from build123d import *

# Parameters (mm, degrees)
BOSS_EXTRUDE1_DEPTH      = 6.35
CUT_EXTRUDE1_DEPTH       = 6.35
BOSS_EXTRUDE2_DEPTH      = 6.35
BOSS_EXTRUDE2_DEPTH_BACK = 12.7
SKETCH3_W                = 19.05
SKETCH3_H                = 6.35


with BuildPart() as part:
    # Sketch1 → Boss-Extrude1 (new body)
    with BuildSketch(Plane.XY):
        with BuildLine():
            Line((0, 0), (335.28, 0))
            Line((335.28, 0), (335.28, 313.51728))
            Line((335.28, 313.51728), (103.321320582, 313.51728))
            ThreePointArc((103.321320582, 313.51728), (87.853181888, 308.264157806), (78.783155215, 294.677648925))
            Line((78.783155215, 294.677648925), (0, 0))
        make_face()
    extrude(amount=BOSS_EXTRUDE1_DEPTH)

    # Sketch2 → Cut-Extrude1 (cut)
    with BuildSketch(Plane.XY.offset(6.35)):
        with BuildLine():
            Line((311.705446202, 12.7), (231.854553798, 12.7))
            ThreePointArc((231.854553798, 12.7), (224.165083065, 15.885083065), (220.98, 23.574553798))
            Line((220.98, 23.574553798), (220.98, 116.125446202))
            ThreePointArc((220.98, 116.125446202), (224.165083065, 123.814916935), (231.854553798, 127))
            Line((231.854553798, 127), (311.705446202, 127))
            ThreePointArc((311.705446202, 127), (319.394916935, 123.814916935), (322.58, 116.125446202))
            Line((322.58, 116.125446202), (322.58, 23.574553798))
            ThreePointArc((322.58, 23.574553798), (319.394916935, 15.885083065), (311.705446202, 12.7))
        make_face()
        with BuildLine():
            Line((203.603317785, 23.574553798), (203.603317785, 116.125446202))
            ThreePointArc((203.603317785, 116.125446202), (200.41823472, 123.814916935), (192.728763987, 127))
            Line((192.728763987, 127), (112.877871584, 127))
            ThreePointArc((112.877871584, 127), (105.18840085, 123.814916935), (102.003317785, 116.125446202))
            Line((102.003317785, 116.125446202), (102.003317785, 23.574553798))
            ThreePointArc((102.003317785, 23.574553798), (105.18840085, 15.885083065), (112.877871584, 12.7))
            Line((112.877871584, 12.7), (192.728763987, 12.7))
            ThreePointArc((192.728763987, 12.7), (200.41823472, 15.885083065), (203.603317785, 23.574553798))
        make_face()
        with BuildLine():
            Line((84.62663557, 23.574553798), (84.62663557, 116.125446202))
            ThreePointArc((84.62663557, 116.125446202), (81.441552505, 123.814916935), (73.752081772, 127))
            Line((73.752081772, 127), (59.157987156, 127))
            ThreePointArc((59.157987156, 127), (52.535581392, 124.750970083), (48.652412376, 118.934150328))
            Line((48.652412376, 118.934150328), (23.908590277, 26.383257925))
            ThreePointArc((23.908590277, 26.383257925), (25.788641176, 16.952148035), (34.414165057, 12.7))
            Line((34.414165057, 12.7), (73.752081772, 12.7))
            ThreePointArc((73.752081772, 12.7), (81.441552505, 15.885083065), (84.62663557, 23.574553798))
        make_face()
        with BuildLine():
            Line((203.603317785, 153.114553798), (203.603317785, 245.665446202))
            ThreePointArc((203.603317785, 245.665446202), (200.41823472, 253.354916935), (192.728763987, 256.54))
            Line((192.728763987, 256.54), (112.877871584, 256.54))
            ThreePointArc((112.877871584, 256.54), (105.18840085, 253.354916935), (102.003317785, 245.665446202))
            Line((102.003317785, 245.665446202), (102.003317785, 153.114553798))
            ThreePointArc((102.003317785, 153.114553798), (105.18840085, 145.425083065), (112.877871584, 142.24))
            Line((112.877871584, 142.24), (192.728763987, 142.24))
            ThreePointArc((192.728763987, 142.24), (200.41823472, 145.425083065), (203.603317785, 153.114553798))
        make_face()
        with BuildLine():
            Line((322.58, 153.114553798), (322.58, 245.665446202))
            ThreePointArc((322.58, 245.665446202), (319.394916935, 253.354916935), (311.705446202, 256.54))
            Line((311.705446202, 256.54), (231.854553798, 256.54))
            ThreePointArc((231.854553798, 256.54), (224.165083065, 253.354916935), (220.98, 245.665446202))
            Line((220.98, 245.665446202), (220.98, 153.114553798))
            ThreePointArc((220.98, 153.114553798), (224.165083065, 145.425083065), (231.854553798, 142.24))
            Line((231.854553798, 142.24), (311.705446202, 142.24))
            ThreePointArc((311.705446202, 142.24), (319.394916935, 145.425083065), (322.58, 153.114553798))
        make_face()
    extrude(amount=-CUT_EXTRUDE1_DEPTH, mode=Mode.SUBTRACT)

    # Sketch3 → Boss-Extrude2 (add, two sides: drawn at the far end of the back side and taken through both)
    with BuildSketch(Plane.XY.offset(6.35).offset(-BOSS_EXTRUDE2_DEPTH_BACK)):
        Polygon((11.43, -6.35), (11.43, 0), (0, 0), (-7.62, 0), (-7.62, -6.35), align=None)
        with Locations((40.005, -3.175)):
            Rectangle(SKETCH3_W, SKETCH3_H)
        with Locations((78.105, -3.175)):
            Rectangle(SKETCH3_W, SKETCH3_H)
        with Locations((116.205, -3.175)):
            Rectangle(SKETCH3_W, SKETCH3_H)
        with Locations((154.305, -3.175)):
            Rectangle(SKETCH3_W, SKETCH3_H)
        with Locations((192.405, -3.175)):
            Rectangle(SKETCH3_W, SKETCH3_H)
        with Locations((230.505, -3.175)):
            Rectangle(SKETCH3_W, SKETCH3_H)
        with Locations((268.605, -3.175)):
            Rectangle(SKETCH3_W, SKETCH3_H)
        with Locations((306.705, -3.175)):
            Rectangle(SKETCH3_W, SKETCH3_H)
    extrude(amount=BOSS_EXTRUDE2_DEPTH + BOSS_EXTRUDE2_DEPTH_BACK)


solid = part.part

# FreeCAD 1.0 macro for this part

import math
import FreeCAD as App
import Part
import Sketcher

V = App.Vector
Q = App.Units.Quantity


def add_polygon(sketch, points):
    """Adds a closed chain of lines whose ends are joined by coincident constraints."""
    first, n = sketch.GeometryCount, len(points)
    for a, b in zip(points, points[1:] + points[:1]):
        sketch.addGeometry(Part.LineSegment(App.Vector(*a, 0), App.Vector(*b, 0)), False)
    for i in range(n):
        sketch.addConstraint(Sketcher.Constraint("Coincident", first + i, 2, first + (i + 1) % n, 1))

doc = App.newDocument("Part")
params = doc.addObject("Spreadsheet::Sheet", "Params")
for row, (alias, value) in enumerate([
    ("sketch1_radius", "1 in"),
    ("sketch1_width", "13.2 in"),
    ("pad1_length", "0.25 in"),
    ("pocket1_length", "0.25 in"),
    ("sketch3_width", "0.75 in"),
    ("sketch3_height", "0.25 in"),
    ("pad2_length", "0.25 in"),
    ("pad2_length2", "0.5 in"),
], start=1):
    params.set(f"A{row}", alias)
    params.set(f"B{row}", "=" + value)
    params.setAlias(f"B{row}", alias)

body = doc.addObject("PartDesign::Body", "Body")

# Sketch on XY plane
sketch1 = doc.addObject("Sketcher::SketchObject", "Sketch")
body.addObject(sketch1)
sketch1.AttachmentSupport = (doc.XY_Plane, [""])
sketch1.MapMode = "FlatFace"
sketch1.addGeometry([
    Part.LineSegment(V(0, 0, 0), V(335, 0, 0)),  # 0
    Part.LineSegment(V(335, 0, 0), V(335, 314, 0)),  # 1
    Part.LineSegment(V(335, 314, 0), V(103, 314, 0)),  # 2
    Part.ArcOfCircle(Part.Circle(V(103, 288, 0), V(0, 0, 1), 25), math.radians(90), math.radians(165)),  # 3
    Part.LineSegment(V(79, 295, 0), V(0, 0, 0)),  # 4
], False)
sketch1.addConstraint([
    Sketcher.Constraint("Coincident", 0, 2, 1, 1),
    Sketcher.Constraint("Coincident", 1, 2, 2, 1),
    Sketcher.Constraint("Tangent", 2, 2, 3, 1),
    Sketcher.Constraint("Tangent", 3, 2, 4, 1),
    Sketcher.Constraint("Coincident", 4, 2, 0, 1),
    Sketcher.Constraint("Horizontal", 0),
    Sketcher.Constraint("Vertical", 1),
    Sketcher.Constraint("Horizontal", 2),
    Sketcher.Constraint("Coincident", 4, 2, -1, 1),
    Sketcher.Constraint("Radius", 3, Q("1 in")),
    Sketcher.Constraint("DistanceX", 0, 1, 0, 2, Q("13.2 in")),
    Sketcher.Constraint("DistanceY", 1, 1, 1, 2, Q("12.3432 in")),
    Sketcher.Constraint("DistanceX", 2, 2, 2, 1, Q("231.958679 mm")),
])
sketch1.setExpression("Constraints[9]", "Params.sketch1_radius")
sketch1.setExpression("Constraints[10]", "Params.sketch1_width")
pad1 = doc.addObject("PartDesign::Pad", "Pad")
body.addObject(pad1)
pad1.Profile = sketch1
pad1.setExpression("Length", "Params.pad1_length")

# Sketch on XY plane
sketch2 = doc.addObject("Sketcher::SketchObject", "Sketch001")
body.addObject(sketch2)
sketch2.AttachmentSupport = (doc.XY_Plane, [""])
sketch2.MapMode = "FlatFace"
sketch2.AttachmentOffset = App.Placement(V(0, 0, 0.25 * 25.4), App.Rotation())
sketch2.addGeometry([
    Part.LineSegment(V(232, 13, 0), V(312, 13, 0)),  # 0
    Part.ArcOfCircle(Part.Circle(V(312, 24, 0), V(0, 0, 1), 11), math.radians(-90), math.radians(0)),  # 1
    Part.LineSegment(V(323, 24, 0), V(323, 116, 0)),  # 2
    Part.ArcOfCircle(Part.Circle(V(312, 116, 0), V(0, 0, 1), 11), math.radians(0), math.radians(90)),  # 3
    Part.LineSegment(V(312, 127, 0), V(232, 127, 0)),  # 4
    Part.ArcOfCircle(Part.Circle(V(232, 116, 0), V(0, 0, 1), 11), math.radians(90), math.radians(180)),  # 5
    Part.LineSegment(V(221, 116, 0), V(221, 24, 0)),  # 6
    Part.ArcOfCircle(Part.Circle(V(232, 24, 0), V(0, 0, 1), 11), math.radians(180), math.radians(270)),  # 7
    Part.LineSegment(V(204, 24, 0), V(204, 116, 0)),  # 8
    Part.ArcOfCircle(Part.Circle(V(193, 116, 0), V(0, 0, 1), 11), math.radians(0), math.radians(90)),  # 9
    Part.LineSegment(V(193, 127, 0), V(113, 127, 0)),  # 10
    Part.ArcOfCircle(Part.Circle(V(113, 116, 0), V(0, 0, 1), 11), math.radians(90), math.radians(180)),  # 11
    Part.LineSegment(V(102, 116, 0), V(102, 24, 0)),  # 12
    Part.ArcOfCircle(Part.Circle(V(113, 24, 0), V(0, 0, 1), 11), math.radians(180), math.radians(270)),  # 13
    Part.LineSegment(V(113, 13, 0), V(193, 13, 0)),  # 14
    Part.ArcOfCircle(Part.Circle(V(193, 24, 0), V(0, 0, 1), 11), math.radians(-90), math.radians(0)),  # 15
    Part.LineSegment(V(85, 24, 0), V(85, 116, 0)),  # 16
    Part.ArcOfCircle(Part.Circle(V(74, 116, 0), V(0, 0, 1), 11), math.radians(0), math.radians(90)),  # 17
    Part.LineSegment(V(74, 127, 0), V(59, 127, 0)),  # 18
    Part.ArcOfCircle(Part.Circle(V(59, 116, 0), V(0, 0, 1), 11), math.radians(90), math.radians(165)),  # 19
    Part.LineSegment(V(49, 119, 0), V(24, 26, 0)),  # 20
    Part.ArcOfCircle(Part.Circle(V(34, 24, 0), V(0, 0, 1), 11), math.radians(165), math.radians(270)),  # 21
    Part.LineSegment(V(34, 13, 0), V(74, 13, 0)),  # 22
    Part.ArcOfCircle(Part.Circle(V(74, 24, 0), V(0, 0, 1), 11), math.radians(-90), math.radians(0)),  # 23
    Part.LineSegment(V(204, 153, 0), V(204, 246, 0)),  # 24
    Part.ArcOfCircle(Part.Circle(V(193, 246, 0), V(0, 0, 1), 11), math.radians(0), math.radians(90)),  # 25
    Part.LineSegment(V(193, 257, 0), V(113, 257, 0)),  # 26
    Part.ArcOfCircle(Part.Circle(V(113, 246, 0), V(0, 0, 1), 11), math.radians(90), math.radians(180)),  # 27
    Part.LineSegment(V(102, 246, 0), V(102, 153, 0)),  # 28
    Part.ArcOfCircle(Part.Circle(V(113, 153, 0), V(0, 0, 1), 11), math.radians(180), math.radians(270)),  # 29
    Part.LineSegment(V(113, 142, 0), V(193, 142, 0)),  # 30
    Part.ArcOfCircle(Part.Circle(V(193, 153, 0), V(0, 0, 1), 11), math.radians(-90), math.radians(0)),  # 31
    Part.LineSegment(V(323, 153, 0), V(323, 246, 0)),  # 32
    Part.ArcOfCircle(Part.Circle(V(312, 246, 0), V(0, 0, 1), 11), math.radians(0), math.radians(90)),  # 33
    Part.LineSegment(V(312, 257, 0), V(232, 257, 0)),  # 34
    Part.ArcOfCircle(Part.Circle(V(232, 246, 0), V(0, 0, 1), 11), math.radians(90), math.radians(180)),  # 35
    Part.LineSegment(V(221, 246, 0), V(221, 153, 0)),  # 36
    Part.ArcOfCircle(Part.Circle(V(232, 153, 0), V(0, 0, 1), 11), math.radians(180), math.radians(270)),  # 37
    Part.LineSegment(V(232, 142, 0), V(312, 142, 0)),  # 38
    Part.ArcOfCircle(Part.Circle(V(312, 153, 0), V(0, 0, 1), 11), math.radians(-90), math.radians(0)),  # 39
], False)
sketch2.addConstraint([
    Sketcher.Constraint("Tangent", 0, 2, 1, 1),
    Sketcher.Constraint("Tangent", 1, 2, 2, 1),
    Sketcher.Constraint("Tangent", 2, 2, 3, 1),
    Sketcher.Constraint("Tangent", 3, 2, 4, 1),
    Sketcher.Constraint("Tangent", 4, 2, 5, 1),
    Sketcher.Constraint("Tangent", 5, 2, 6, 1),
    Sketcher.Constraint("Tangent", 6, 2, 7, 1),
    Sketcher.Constraint("Tangent", 7, 2, 0, 1),
    Sketcher.Constraint("Tangent", 8, 2, 9, 1),
    Sketcher.Constraint("Tangent", 9, 2, 10, 1),
    Sketcher.Constraint("Tangent", 10, 2, 11, 1),
    Sketcher.Constraint("Tangent", 11, 2, 12, 1),
    Sketcher.Constraint("Tangent", 12, 2, 13, 1),
    Sketcher.Constraint("Tangent", 13, 2, 14, 1),
    Sketcher.Constraint("Tangent", 14, 2, 15, 1),
    Sketcher.Constraint("Tangent", 15, 2, 8, 1),
    Sketcher.Constraint("Tangent", 16, 2, 17, 1),
    Sketcher.Constraint("Tangent", 17, 2, 18, 1),
    Sketcher.Constraint("Tangent", 18, 2, 19, 1),
    Sketcher.Constraint("Tangent", 19, 2, 20, 1),
    Sketcher.Constraint("Tangent", 20, 2, 21, 1),
    Sketcher.Constraint("Tangent", 21, 2, 22, 1),
    Sketcher.Constraint("Tangent", 22, 2, 23, 1),
    Sketcher.Constraint("Tangent", 23, 2, 16, 1),
    Sketcher.Constraint("Tangent", 24, 2, 25, 1),
    Sketcher.Constraint("Tangent", 25, 2, 26, 1),
    Sketcher.Constraint("Tangent", 26, 2, 27, 1),
    Sketcher.Constraint("Tangent", 27, 2, 28, 1),
    Sketcher.Constraint("Tangent", 28, 2, 29, 1),
    Sketcher.Constraint("Tangent", 29, 2, 30, 1),
    Sketcher.Constraint("Tangent", 30, 2, 31, 1),
    Sketcher.Constraint("Tangent", 31, 2, 24, 1),
    Sketcher.Constraint("Tangent", 32, 2, 33, 1),
    Sketcher.Constraint("Tangent", 33, 2, 34, 1),
    Sketcher.Constraint("Tangent", 34, 2, 35, 1),
    Sketcher.Constraint("Tangent", 35, 2, 36, 1),
    Sketcher.Constraint("Tangent", 36, 2, 37, 1),
    Sketcher.Constraint("Tangent", 37, 2, 38, 1),
    Sketcher.Constraint("Tangent", 38, 2, 39, 1),
    Sketcher.Constraint("Tangent", 39, 2, 32, 1),
    Sketcher.Constraint("Horizontal", 0),
    Sketcher.Constraint("Vertical", 2),
    Sketcher.Constraint("Horizontal", 4),
    Sketcher.Constraint("Vertical", 6),
    Sketcher.Constraint("Vertical", 8),
    Sketcher.Constraint("Horizontal", 10),
    Sketcher.Constraint("Vertical", 12),
    Sketcher.Constraint("Horizontal", 14),
    Sketcher.Constraint("Vertical", 16),
    Sketcher.Constraint("Horizontal", 18),
    Sketcher.Constraint("Horizontal", 22),
    Sketcher.Constraint("Vertical", 24),
    Sketcher.Constraint("Horizontal", 26),
    Sketcher.Constraint("Vertical", 28),
    Sketcher.Constraint("Horizontal", 30),
    Sketcher.Constraint("Vertical", 32),
    Sketcher.Constraint("Horizontal", 34),
    Sketcher.Constraint("Vertical", 36),
    Sketcher.Constraint("Horizontal", 38),
    Sketcher.Constraint("Equal", 1, 3),
    Sketcher.Constraint("Equal", 3, 5),
    Sketcher.Constraint("Equal", 5, 7),
    Sketcher.Constraint("Equal", 7, 9),
    Sketcher.Constraint("Equal", 9, 11),
    Sketcher.Constraint("Equal", 11, 13),
    Sketcher.Constraint("Equal", 13, 15),
    Sketcher.Constraint("Equal", 15, 17),
    Sketcher.Constraint("Equal", 17, 19),
    Sketcher.Constraint("Equal", 19, 21),
    Sketcher.Constraint("Equal", 21, 23),
    Sketcher.Constraint("Equal", 23, 25),
    Sketcher.Constraint("Equal", 25, 27),
    Sketcher.Constraint("Equal", 27, 29),
    Sketcher.Constraint("Equal", 29, 31),
    Sketcher.Constraint("Equal", 31, 33),
    Sketcher.Constraint("Equal", 33, 35),
    Sketcher.Constraint("Equal", 35, 37),
    Sketcher.Constraint("Equal", 37, 39),
    Sketcher.Constraint("Horizontal", 5, 3, 9, 3),
    Sketcher.Constraint("Horizontal", 7, 3, 13, 3),
    Sketcher.Constraint("Horizontal", 11, 3, 17, 3),
    Sketcher.Constraint("Horizontal", 15, 3, 21, 3),
    Sketcher.Constraint("Horizontal", 27, 3, 33, 3),
    Sketcher.Constraint("Horizontal", 31, 3, 37, 3),
    Sketcher.Constraint("Vertical", 15, 3, 25, 3),
    Sketcher.Constraint("Vertical", 13, 3, 27, 3),
    Sketcher.Constraint("Vertical", 3, 3, 33, 3),
    Sketcher.Constraint("Vertical", 7, 3, 35, 3),
    Sketcher.Constraint("Equal", 4, 10),
    Sketcher.Constraint("Equal", 16, 24),
    Sketcher.Constraint("DistanceY", -1, 1, 3, 2, Q("5 in")),
    Sketcher.Constraint("DistanceY", -1, 1, 0, 2, Q("0.5 in")),
    Sketcher.Constraint("DistanceX", -1, 1, 1, 2, Q("12.7 in")),
    Sketcher.Constraint("DistanceX", -1, 1, 5, 2, Q("8.7 in")),
    Sketcher.Constraint("DistanceY", -1, 1, 25, 2, Q("10.1 in")),
    Sketcher.Constraint("Radius", 1, Q("10.874554 mm")),
    Sketcher.Constraint("DistanceX", 21, 3, 15, 3, Q("158.314599 mm")),
    Sketcher.Constraint("DistanceX", 18, 2, 18, 1, Q("14.594095 mm")),
    Sketcher.Constraint("DistanceX", 22, 1, 22, 2, Q("39.337917 mm")),
    Sketcher.Constraint("DistanceX", -1, 1, 11, 3, Q("112.877872 mm")),
])
pocket1 = doc.addObject("PartDesign::Pocket", "Pocket")
body.addObject(pocket1)
pocket1.Profile = sketch2
pocket1.setExpression("Length", "Params.pocket1_length")

# Sketch on XY plane
sketch3 = doc.addObject("Sketcher::SketchObject", "Sketch002")
body.addObject(sketch3)
sketch3.AttachmentSupport = (doc.XY_Plane, [""])
sketch3.MapMode = "FlatFace"
sketch3.AttachmentOffset = App.Placement(V(0, 0, 0.25 * 25.4), App.Rotation())
add_polygon(sketch3, [(11, -6), (11, 0), (-8, 0), (-8, -6)])  # lines 0-3
add_polygon(sketch3, [(30, 0), (30, -6), (50, -6), (50, 0)])  # lines 4-7
add_polygon(sketch3, [(69, 0), (69, -6), (88, -6), (88, 0)])  # lines 8-11
add_polygon(sketch3, [(107, 0), (107, -6), (126, -6), (126, 0)])  # lines 12-15
add_polygon(sketch3, [(145, 0), (145, -6), (164, -6), (164, 0)])  # lines 16-19
add_polygon(sketch3, [(183, 0), (183, -6), (202, -6), (202, 0)])  # lines 20-23
add_polygon(sketch3, [(221, 0), (221, -6), (240, -6), (240, 0)])  # lines 24-27
add_polygon(sketch3, [(259, 0), (259, -6), (278, -6), (278, 0)])  # lines 28-31
add_polygon(sketch3, [(297, 0), (297, -6), (316, -6), (316, 0)])  # lines 32-35
sketch3.addConstraint([
    Sketcher.Constraint("Vertical", 0),
    Sketcher.Constraint("Horizontal", 1),
    Sketcher.Constraint("Vertical", 2),
    Sketcher.Constraint("Horizontal", 3),
    Sketcher.Constraint("Vertical", 4),
    Sketcher.Constraint("Horizontal", 5),
    Sketcher.Constraint("Vertical", 6),
    Sketcher.Constraint("Horizontal", 7),
    Sketcher.Constraint("Vertical", 8),
    Sketcher.Constraint("Horizontal", 9),
    Sketcher.Constraint("Vertical", 10),
    Sketcher.Constraint("Horizontal", 11),
    Sketcher.Constraint("Vertical", 12),
    Sketcher.Constraint("Horizontal", 13),
    Sketcher.Constraint("Vertical", 14),
    Sketcher.Constraint("Horizontal", 15),
    Sketcher.Constraint("Vertical", 16),
    Sketcher.Constraint("Horizontal", 17),
    Sketcher.Constraint("Vertical", 18),
    Sketcher.Constraint("Horizontal", 19),
    Sketcher.Constraint("Vertical", 20),
    Sketcher.Constraint("Horizontal", 21),
    Sketcher.Constraint("Vertical", 22),
    Sketcher.Constraint("Horizontal", 23),
    Sketcher.Constraint("Vertical", 24),
    Sketcher.Constraint("Horizontal", 25),
    Sketcher.Constraint("Vertical", 26),
    Sketcher.Constraint("Horizontal", 27),
    Sketcher.Constraint("Vertical", 28),
    Sketcher.Constraint("Horizontal", 29),
    Sketcher.Constraint("Vertical", 30),
    Sketcher.Constraint("Horizontal", 31),
    Sketcher.Constraint("Vertical", 32),
    Sketcher.Constraint("Horizontal", 33),
    Sketcher.Constraint("Vertical", 34),
    Sketcher.Constraint("Horizontal", 35),
    Sketcher.Constraint("PointOnObject", 0, 2, -1),
    Sketcher.Constraint("PointOnObject", 6, 2, -1),
    Sketcher.Constraint("PointOnObject", 10, 2, -1),
    Sketcher.Constraint("PointOnObject", 14, 2, -1),
    Sketcher.Constraint("PointOnObject", 18, 2, -1),
    Sketcher.Constraint("PointOnObject", 22, 2, -1),
    Sketcher.Constraint("PointOnObject", 26, 2, -1),
    Sketcher.Constraint("PointOnObject", 30, 2, -1),
    Sketcher.Constraint("PointOnObject", 34, 2, -1),
    Sketcher.Constraint("Horizontal", 3, 2, 4, 2),
    Sketcher.Constraint("Horizontal", 5, 2, 8, 2),
    Sketcher.Constraint("Horizontal", 9, 2, 12, 2),
    Sketcher.Constraint("Horizontal", 13, 2, 16, 2),
    Sketcher.Constraint("Horizontal", 17, 2, 20, 2),
    Sketcher.Constraint("Horizontal", 21, 2, 24, 2),
    Sketcher.Constraint("Horizontal", 25, 2, 28, 2),
    Sketcher.Constraint("Horizontal", 29, 2, 32, 2),
    Sketcher.Constraint("Equal", 3, 5),
    Sketcher.Constraint("Equal", 7, 9),
    Sketcher.Constraint("Equal", 11, 13),
    Sketcher.Constraint("Equal", 15, 17),
    Sketcher.Constraint("Equal", 19, 21),
    Sketcher.Constraint("Equal", 23, 25),
    Sketcher.Constraint("Equal", 27, 29),
    Sketcher.Constraint("Equal", 31, 33),
    Sketcher.Constraint("DistanceX", 1, 2, 1, 1, Q("0.75 in")),
    Sketcher.Constraint("DistanceY", 0, 1, 0, 2, Q("0.25 in")),
    Sketcher.Constraint("DistanceX", 1, 2, -1, 1, Q("0.3 in")),
    Sketcher.Constraint("DistanceX", -1, 1, 4, 2, Q("1.2 in")),
    Sketcher.Constraint("DistanceX", -1, 1, 8, 2, Q("2.7 in")),
    Sketcher.Constraint("DistanceX", -1, 1, 12, 2, Q("4.2 in")),
    Sketcher.Constraint("DistanceX", -1, 1, 16, 2, Q("5.7 in")),
    Sketcher.Constraint("DistanceX", -1, 1, 20, 2, Q("7.2 in")),
    Sketcher.Constraint("DistanceX", -1, 1, 24, 2, Q("8.7 in")),
    Sketcher.Constraint("DistanceX", -1, 1, 28, 2, Q("10.2 in")),
    Sketcher.Constraint("DistanceX", -1, 1, 32, 2, Q("11.7 in")),
])
sketch3.setExpression("Constraints[97]", "Params.sketch3_width")
sketch3.setExpression("Constraints[98]", "Params.sketch3_height")
pad2 = doc.addObject("PartDesign::Pad", "Pad001")
body.addObject(pad2)
pad2.Profile = sketch3
pad2.Type = "TwoLengths"
pad2.setExpression("Length", "Params.pad2_length")
pad2.setExpression("Length2", "Params.pad2_length2")

doc.recompute()
